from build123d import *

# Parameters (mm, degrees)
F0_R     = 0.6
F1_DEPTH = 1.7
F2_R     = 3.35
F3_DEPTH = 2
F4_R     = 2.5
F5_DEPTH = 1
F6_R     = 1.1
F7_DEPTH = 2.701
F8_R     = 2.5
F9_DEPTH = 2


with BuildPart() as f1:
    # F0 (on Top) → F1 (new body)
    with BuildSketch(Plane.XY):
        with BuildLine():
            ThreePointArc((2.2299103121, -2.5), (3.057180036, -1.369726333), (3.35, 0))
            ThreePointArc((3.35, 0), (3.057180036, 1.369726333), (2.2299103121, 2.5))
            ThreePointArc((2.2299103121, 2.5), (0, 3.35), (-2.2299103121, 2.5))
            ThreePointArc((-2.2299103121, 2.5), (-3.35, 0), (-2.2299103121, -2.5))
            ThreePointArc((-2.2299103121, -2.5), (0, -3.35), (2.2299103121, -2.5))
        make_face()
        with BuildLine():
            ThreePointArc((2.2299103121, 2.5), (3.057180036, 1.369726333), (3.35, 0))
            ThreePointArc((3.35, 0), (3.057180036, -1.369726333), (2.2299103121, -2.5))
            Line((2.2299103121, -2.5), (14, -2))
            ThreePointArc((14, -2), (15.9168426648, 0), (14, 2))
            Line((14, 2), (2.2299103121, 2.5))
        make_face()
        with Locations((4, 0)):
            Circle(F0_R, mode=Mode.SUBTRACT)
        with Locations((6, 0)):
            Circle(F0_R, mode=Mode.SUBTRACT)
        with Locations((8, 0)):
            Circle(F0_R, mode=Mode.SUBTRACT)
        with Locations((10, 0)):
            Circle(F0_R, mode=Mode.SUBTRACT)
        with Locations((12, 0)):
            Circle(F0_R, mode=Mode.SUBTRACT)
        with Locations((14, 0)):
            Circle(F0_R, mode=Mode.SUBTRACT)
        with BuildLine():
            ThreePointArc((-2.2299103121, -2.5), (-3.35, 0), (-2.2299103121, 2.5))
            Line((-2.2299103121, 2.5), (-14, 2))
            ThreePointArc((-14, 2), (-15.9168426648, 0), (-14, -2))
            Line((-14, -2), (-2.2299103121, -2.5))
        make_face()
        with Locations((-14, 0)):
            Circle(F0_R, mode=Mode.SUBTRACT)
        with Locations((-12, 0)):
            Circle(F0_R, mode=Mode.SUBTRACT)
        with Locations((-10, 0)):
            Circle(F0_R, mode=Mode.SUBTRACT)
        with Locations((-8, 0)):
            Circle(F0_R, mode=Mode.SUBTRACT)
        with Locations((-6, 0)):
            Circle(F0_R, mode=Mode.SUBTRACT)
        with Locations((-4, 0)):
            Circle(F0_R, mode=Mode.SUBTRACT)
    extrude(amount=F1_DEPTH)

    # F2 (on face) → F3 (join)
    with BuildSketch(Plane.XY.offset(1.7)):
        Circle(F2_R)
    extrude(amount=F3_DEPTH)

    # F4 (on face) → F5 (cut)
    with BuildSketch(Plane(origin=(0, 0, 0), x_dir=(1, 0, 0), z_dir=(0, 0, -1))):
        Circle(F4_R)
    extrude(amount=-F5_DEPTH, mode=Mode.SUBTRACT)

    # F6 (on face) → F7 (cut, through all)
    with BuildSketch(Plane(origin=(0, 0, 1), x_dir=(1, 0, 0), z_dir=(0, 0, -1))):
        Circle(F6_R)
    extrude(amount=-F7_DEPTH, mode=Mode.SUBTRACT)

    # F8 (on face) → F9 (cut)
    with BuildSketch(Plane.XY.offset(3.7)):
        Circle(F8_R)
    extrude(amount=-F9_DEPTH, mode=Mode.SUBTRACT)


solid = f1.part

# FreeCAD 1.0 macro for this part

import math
import FreeCAD as App
import Part
import Sketcher

doc = App.newDocument("Part")
body = doc.addObject("PartDesign::Body", "Body")

sketch1 = body.newObject("Sketcher::SketchObject", "Sketch")
sketch1.AttachmentSupport = (doc.getObject("XY_Plane"), [""])
sketch1.MapMode = "FlatFace"
sketch1.addGeometry(Part.ArcOfCircle(Part.Circle(App.Vector(0, 0, 0), App.Vector(0, 0, 1), 3.4), math.radians(48), math.radians(132)), False)
sketch1.addGeometry(Part.LineSegment(App.Vector(-2.2, 2.5, 0), App.Vector(-14, 2, 0)), False)
sketch1.addGeometry(Part.ArcOfCircle(Part.Circle(App.Vector(-13.9, 0, 0), App.Vector(0, 0, 1), 2), math.radians(92), math.radians(268)), False)
sketch1.addGeometry(Part.LineSegment(App.Vector(-14, -2, 0), App.Vector(-2.2, -2.5, 0)), False)
sketch1.addGeometry(Part.ArcOfCircle(Part.Circle(App.Vector(0, 0, 0), App.Vector(0, 0, 1), 3.4), math.radians(-132), math.radians(-48)), False)
sketch1.addGeometry(Part.LineSegment(App.Vector(2.2, -2.5, 0), App.Vector(14, -2, 0)), False)
sketch1.addGeometry(Part.ArcOfCircle(Part.Circle(App.Vector(13.9, 0, 0), App.Vector(0, 0, 1), 2), math.radians(-88), math.radians(88)), False)
sketch1.addGeometry(Part.LineSegment(App.Vector(14, 2, 0), App.Vector(2.2, 2.5, 0)), False)
sketch1.addGeometry(Part.Circle(App.Vector(-14, 0, 0), App.Vector(0, 0, 1), 0.6), False)
sketch1.addGeometry(Part.Circle(App.Vector(-12, 0, 0), App.Vector(0, 0, 1), 0.6), False)
sketch1.addGeometry(Part.Circle(App.Vector(-10, 0, 0), App.Vector(0, 0, 1), 0.6), False)
sketch1.addGeometry(Part.Circle(App.Vector(-8, 0, 0), App.Vector(0, 0, 1), 0.6), False)
sketch1.addGeometry(Part.Circle(App.Vector(-6, 0, 0), App.Vector(0, 0, 1), 0.6), False)
sketch1.addGeometry(Part.Circle(App.Vector(-4, 0, 0), App.Vector(0, 0, 1), 0.6), False)
sketch1.addGeometry(Part.Circle(App.Vector(4, 0, 0), App.Vector(0, 0, 1), 0.6), False)
sketch1.addGeometry(Part.Circle(App.Vector(6, 0, 0), App.Vector(0, 0, 1), 0.6), False)
sketch1.addGeometry(Part.Circle(App.Vector(8, 0, 0), App.Vector(0, 0, 1), 0.6), False)
sketch1.addGeometry(Part.Circle(App.Vector(10, 0, 0), App.Vector(0, 0, 1), 0.6), False)
sketch1.addGeometry(Part.Circle(App.Vector(12, 0, 0), App.Vector(0, 0, 1), 0.6), False)
sketch1.addGeometry(Part.Circle(App.Vector(14, 0, 0), App.Vector(0, 0, 1), 0.6), False)
sketch1.addConstraint(Sketcher.Constraint("Coincident", 0, 2, 1, 1))
sketch1.addConstraint(Sketcher.Constraint("Tangent", 1, 2, 2, 1))
sketch1.addConstraint(Sketcher.Constraint("Tangent", 2, 2, 3, 1))
sketch1.addConstraint(Sketcher.Constraint("Coincident", 3, 2, 4, 1))
sketch1.addConstraint(Sketcher.Constraint("Coincident", 4, 2, 5, 1))
sketch1.addConstraint(Sketcher.Constraint("Tangent", 5, 2, 6, 1))
sketch1.addConstraint(Sketcher.Constraint("Tangent", 6, 2, 7, 1))
sketch1.addConstraint(Sketcher.Constraint("Coincident", 7, 2, 0, 1))
sketch1.addConstraint(Sketcher.Constraint("Coincident", 0, 3, -1, 1))
sketch1.addConstraint(Sketcher.Constraint("Coincident", 4, 3, -1, 1))
sketch1.addConstraint(Sketcher.Constraint("Equal", 0, 4))
sketch1.addConstraint(Sketcher.Constraint("Equal", 2, 6))
sketch1.addConstraint(Sketcher.Constraint("Equal", 8, 9))
sketch1.addConstraint(Sketcher.Constraint("Equal", 9, 10))
sketch1.addConstraint(Sketcher.Constraint("Equal", 10, 11))
sketch1.addConstraint(Sketcher.Constraint("Equal", 11, 12))
sketch1.addConstraint(Sketcher.Constraint("Equal", 12, 13))
sketch1.addConstraint(Sketcher.Constraint("Equal", 13, 14))
sketch1.addConstraint(Sketcher.Constraint("Equal", 14, 15))
sketch1.addConstraint(Sketcher.Constraint("Equal", 15, 16))
sketch1.addConstraint(Sketcher.Constraint("Equal", 16, 17))
sketch1.addConstraint(Sketcher.Constraint("Equal", 17, 18))
sketch1.addConstraint(Sketcher.Constraint("Equal", 18, 19))
sketch1.addConstraint(Sketcher.Constraint("Symmetric", 2, 3, 6, 3, -1, 1))
sketch1.addConstraint(Sketcher.Constraint("Symmetric", 13, 3, 14, 3, -1, 1))
sketch1.addConstraint(Sketcher.Constraint("Symmetric", 12, 3, 15, 3, -1, 1))
sketch1.addConstraint(Sketcher.Constraint("Symmetric", 11, 3, 16, 3, -1, 1))
sketch1.addConstraint(Sketcher.Constraint("Symmetric", 10, 3, 17, 3, -1, 1))
sketch1.addConstraint(Sketcher.Constraint("Symmetric", 9, 3, 18, 3, -1, 1))
sketch1.addConstraint(Sketcher.Constraint("Symmetric", 8, 3, 19, 3, -1, 1))
sketch1.addConstraint(Sketcher.Constraint("Symmetric", 2, 2, 5, 2, -2))
sketch1.addConstraint(Sketcher.Constraint("PointOnObject", 8, 3, -1))
sketch1.addConstraint(Sketcher.Constraint("PointOnObject", 9, 3, -1))
sketch1.addConstraint(Sketcher.Constraint("PointOnObject", 10, 3, -1))
sketch1.addConstraint(Sketcher.Constraint("PointOnObject", 11, 3, -1))
sketch1.addConstraint(Sketcher.Constraint("PointOnObject", 12, 3, -1))
sketch1.addConstraint(Sketcher.Constraint("PointOnObject", 13, 3, -1))
sketch1.addConstraint(Sketcher.Constraint("Parallel", 1, 5))
sketch1.addConstraint(Sketcher.Constraint("Parallel", 3, 7))
sketch1.addConstraint(Sketcher.Constraint("Vertical", 8, 3, 1, 2))
sketch1.addConstraint(Sketcher.Constraint("Diameter", 8, 1.2))
sketch1.addConstraint(Sketcher.Constraint("Radius", 0, 3.35))
sketch1.addConstraint(Sketcher.Constraint("DistanceX", 8, 3, -1, 1, 14.0))
sketch1.addConstraint(Sketcher.Constraint("DistanceX", 9, 3, -1, 1, 12.0))
sketch1.addConstraint(Sketcher.Constraint("DistanceX", 10, 3, -1, 1, 10.0))
sketch1.addConstraint(Sketcher.Constraint("DistanceX", 11, 3, -1, 1, 8.0))
sketch1.addConstraint(Sketcher.Constraint("DistanceX", 12, 3, -1, 1, 6.0))
sketch1.addConstraint(Sketcher.Constraint("DistanceX", 13, 3, -1, 1, 4.0))
sketch1.addConstraint(Sketcher.Constraint("DistanceY", -1, 1, 1, 2, 2.0))
sketch1.addConstraint(Sketcher.Constraint("DistanceY", 3, 2, 0, 2, 5.0))
pad1 = body.newObject("PartDesign::Pad", "Pad")
pad1.Profile = sketch1
pad1.Length = 1.7

sketch2 = body.newObject("Sketcher::SketchObject", "Sketch001")
sketch2.AttachmentSupport = (doc.getObject("XY_Plane"), [""])
sketch2.MapMode = "FlatFace"
sketch2.AttachmentOffset = App.Placement(App.Vector(0, 0, 1.7), App.Rotation())
sketch2.addGeometry(Part.Circle(App.Vector(0, 0, 0), App.Vector(0, 0, 1), 3.4), False)
sketch2.addConstraint(Sketcher.Constraint("Coincident", 0, 3, -1, 1))
sketch2.addConstraint(Sketcher.Constraint("Diameter", 0, 6.7))
pad2 = body.newObject("PartDesign::Pad", "Pad001")
pad2.Profile = sketch2
pad2.Length = 2

sketch3 = body.newObject("Sketcher::SketchObject", "Sketch002")
sketch3.AttachmentSupport = (doc.getObject("XY_Plane"), [""])
sketch3.MapMode = "FlatFace"
sketch3.addGeometry(Part.Circle(App.Vector(0, 0, 0), App.Vector(0, 0, 1), 2.5), False)
sketch3.addConstraint(Sketcher.Constraint("Coincident", 0, 3, -1, 1))
sketch3.addConstraint(Sketcher.Constraint("Diameter", 0, 5.0))
pocket1 = body.newObject("PartDesign::Pocket", "Pocket")
pocket1.Profile = sketch3
pocket1.Length = 1
pocket1.Reversed = True

sketch4 = body.newObject("Sketcher::SketchObject", "Sketch003")
sketch4.AttachmentSupport = (doc.getObject("XY_Plane"), [""])
sketch4.MapMode = "FlatFace"
sketch4.AttachmentOffset = App.Placement(App.Vector(0, 0, 1), App.Rotation())
sketch4.addGeometry(Part.Circle(App.Vector(0, 0, 0), App.Vector(0, 0, 1), 1.1), False)
sketch4.addConstraint(Sketcher.Constraint("Coincident", 0, 3, -1, 1))
sketch4.addConstraint(Sketcher.Constraint("Diameter", 0, 2.2))
pocket2 = body.newObject("PartDesign::Pocket", "Pocket001")
pocket2.Profile = sketch4
pocket2.Type = "ThroughAll"
pocket2.Reversed = True

sketch5 = body.newObject("Sketcher::SketchObject", "Sketch004")
sketch5.AttachmentSupport = (doc.getObject("XY_Plane"), [""])
sketch5.MapMode = "FlatFace"
sketch5.AttachmentOffset = App.Placement(App.Vector(0, 0, 3.7), App.Rotation())
sketch5.addGeometry(Part.Circle(App.Vector(0, 0, 0), App.Vector(0, 0, 1), 2.5), False)
sketch5.addConstraint(Sketcher.Constraint("Coincident", 0, 3, -1, 1))
sketch5.addConstraint(Sketcher.Constraint("Diameter", 0, 5.0))
pocket3 = body.newObject("PartDesign::Pocket", "Pocket002")
pocket3.Profile = sketch5
pocket3.Length = 2

doc.recompute()
